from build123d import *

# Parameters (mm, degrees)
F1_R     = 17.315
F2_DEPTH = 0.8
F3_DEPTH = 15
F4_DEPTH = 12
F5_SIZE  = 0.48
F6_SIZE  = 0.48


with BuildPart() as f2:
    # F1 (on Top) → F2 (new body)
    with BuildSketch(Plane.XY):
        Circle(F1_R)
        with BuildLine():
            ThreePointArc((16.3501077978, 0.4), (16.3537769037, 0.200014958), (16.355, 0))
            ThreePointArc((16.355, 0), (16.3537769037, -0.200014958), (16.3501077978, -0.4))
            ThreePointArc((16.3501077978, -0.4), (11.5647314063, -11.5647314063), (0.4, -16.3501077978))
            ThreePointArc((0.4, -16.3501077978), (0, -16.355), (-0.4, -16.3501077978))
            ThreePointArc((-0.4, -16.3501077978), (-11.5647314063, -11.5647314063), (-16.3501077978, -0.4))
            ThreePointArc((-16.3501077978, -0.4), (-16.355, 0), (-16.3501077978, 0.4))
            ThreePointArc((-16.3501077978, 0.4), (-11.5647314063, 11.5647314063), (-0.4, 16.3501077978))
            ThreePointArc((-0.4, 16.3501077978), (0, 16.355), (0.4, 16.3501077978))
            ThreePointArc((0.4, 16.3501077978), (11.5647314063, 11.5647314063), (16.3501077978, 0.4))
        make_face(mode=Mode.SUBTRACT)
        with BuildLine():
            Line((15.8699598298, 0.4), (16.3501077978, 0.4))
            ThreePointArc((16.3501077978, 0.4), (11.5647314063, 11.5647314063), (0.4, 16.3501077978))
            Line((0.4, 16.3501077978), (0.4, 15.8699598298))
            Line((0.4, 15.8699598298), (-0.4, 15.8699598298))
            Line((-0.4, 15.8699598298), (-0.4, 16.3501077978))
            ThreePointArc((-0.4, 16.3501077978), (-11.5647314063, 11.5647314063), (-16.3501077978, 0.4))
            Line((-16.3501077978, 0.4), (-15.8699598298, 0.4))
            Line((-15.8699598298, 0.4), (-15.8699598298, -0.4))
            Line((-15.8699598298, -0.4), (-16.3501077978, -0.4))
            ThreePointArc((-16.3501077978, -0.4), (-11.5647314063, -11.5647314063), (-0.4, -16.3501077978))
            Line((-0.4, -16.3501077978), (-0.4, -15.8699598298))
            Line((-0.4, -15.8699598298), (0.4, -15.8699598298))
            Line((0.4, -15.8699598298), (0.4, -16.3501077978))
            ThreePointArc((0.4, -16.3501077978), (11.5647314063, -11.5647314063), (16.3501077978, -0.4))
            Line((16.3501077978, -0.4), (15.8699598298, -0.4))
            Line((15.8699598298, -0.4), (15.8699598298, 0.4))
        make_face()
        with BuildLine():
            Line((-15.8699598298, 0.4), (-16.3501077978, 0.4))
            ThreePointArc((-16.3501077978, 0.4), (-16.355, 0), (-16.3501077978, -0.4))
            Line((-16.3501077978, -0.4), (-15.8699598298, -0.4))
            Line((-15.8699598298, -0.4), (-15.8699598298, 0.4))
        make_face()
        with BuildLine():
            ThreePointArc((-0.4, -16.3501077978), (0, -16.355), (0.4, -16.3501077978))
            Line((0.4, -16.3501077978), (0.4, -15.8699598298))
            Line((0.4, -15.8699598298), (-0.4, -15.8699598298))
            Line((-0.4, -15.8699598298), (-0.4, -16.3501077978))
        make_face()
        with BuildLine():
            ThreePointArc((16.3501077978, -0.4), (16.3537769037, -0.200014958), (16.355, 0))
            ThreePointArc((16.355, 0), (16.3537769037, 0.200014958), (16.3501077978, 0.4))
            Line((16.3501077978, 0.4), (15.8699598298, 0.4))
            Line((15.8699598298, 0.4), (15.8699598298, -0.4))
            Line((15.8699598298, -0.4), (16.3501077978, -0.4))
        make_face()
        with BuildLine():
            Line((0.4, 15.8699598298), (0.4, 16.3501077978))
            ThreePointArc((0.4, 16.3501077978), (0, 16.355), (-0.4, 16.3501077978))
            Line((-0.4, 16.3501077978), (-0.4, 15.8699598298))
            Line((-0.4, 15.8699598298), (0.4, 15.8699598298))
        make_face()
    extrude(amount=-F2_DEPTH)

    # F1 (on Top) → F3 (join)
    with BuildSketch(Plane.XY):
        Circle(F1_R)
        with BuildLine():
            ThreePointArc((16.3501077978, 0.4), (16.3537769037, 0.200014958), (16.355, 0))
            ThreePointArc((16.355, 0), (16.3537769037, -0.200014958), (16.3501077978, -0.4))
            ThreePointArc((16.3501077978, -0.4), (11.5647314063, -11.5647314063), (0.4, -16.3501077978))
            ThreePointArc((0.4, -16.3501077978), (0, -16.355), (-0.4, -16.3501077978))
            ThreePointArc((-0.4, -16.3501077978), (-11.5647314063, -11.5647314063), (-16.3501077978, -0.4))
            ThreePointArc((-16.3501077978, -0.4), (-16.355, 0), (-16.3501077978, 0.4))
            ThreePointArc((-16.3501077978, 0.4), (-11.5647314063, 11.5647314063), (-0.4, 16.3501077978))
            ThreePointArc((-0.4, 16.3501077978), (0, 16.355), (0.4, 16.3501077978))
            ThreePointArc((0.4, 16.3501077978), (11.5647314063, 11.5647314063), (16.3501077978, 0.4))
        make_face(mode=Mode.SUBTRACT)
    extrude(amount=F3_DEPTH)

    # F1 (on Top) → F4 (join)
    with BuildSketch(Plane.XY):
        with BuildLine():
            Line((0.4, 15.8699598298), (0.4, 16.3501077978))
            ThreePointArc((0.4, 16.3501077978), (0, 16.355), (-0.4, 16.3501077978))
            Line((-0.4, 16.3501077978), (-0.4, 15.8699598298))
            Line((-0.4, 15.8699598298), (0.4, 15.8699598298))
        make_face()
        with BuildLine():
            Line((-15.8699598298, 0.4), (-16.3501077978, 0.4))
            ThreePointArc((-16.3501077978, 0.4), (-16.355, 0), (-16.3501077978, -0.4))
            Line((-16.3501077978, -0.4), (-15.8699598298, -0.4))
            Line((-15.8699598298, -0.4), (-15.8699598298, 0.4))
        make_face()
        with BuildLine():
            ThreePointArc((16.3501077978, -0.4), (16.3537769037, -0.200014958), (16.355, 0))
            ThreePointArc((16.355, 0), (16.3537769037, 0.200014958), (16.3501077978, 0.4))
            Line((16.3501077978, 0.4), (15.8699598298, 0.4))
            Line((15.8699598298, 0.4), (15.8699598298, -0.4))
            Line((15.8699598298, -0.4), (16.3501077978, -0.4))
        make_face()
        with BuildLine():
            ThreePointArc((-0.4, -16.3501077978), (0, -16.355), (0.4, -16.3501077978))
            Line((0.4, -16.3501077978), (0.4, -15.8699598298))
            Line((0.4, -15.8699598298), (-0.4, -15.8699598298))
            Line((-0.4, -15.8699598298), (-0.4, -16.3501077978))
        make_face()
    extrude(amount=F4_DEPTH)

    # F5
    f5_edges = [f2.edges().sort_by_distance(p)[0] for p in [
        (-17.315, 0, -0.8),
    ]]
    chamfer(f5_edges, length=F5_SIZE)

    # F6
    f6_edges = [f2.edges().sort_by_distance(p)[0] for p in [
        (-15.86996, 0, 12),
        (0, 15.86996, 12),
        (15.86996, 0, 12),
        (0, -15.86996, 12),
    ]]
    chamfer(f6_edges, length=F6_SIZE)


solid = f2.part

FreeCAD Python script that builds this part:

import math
import FreeCAD as App
import Part
import Sketcher
from FreeCAD import Vector
Q = App.Units.Quantity


def edges_at(feature, points):
    """Names of the edges that pass closest to the given points."""
    edges = feature.Shape.Edges
    near = lambda p: min(range(len(edges)), key=lambda i: edges[i].distToShape(Part.Vertex(*p))[0])
    return sorted({f"Edge{near(p) + 1}" for p in points})

doc = App.newDocument("Part")
params = doc.addObject("Spreadsheet::Sheet", "Params")
for row, (alias, value) in enumerate([
    ("sketch1_diameter", "34.63 mm"),
    ("pad1_length", "0.8 mm"),
    ("sketch2_diameter", "34.63 mm"),
    ("pad2_length", "15 mm"),
    ("sketch3_width", "0.8 mm"),
    ("pad3_length", "12 mm"),
    ("chamfer_size", "0.48 mm"),
    ("chamfer2_size", "0.48 mm"),
], start=1):
    params.set(f"A{row}", alias)
    params.set(f"B{row}", "=" + value)
    params.setAlias(f"B{row}", alias)

body = doc.addObject("PartDesign::Body", "Body")

# Sketch on XY plane
sketch1 = body.newObject("Sketcher::SketchObject", "Sketch")
sketch1.AttachmentSupport = (doc.getObject("XY_Plane"), [""])
sketch1.MapMode = "FlatFace"
sketch1.addGeometry(Part.Circle(Vector(0, 0, 0), Vector(0, 0, 1), 17), False)
sketch1.addConstraint([
    Sketcher.Constraint("Coincident", 0, 3, -1, 1),
    Sketcher.Constraint("Diameter", 0, Q("34.63 mm")),
])
sketch1.setExpression("Constraints[1]", "Params.sketch1_diameter")
pad1 = body.newObject("PartDesign::Pad", "Pad")
pad1.Profile = sketch1
pad1.setExpression("Length", "Params.pad1_length")
pad1.Reversed = True

# Sketch on XY plane
sketch2 = body.newObject("Sketcher::SketchObject", "Sketch001")
sketch2.AttachmentSupport = (doc.getObject("XY_Plane"), [""])
sketch2.MapMode = "FlatFace"
sketch2.addGeometry([
    Part.Circle(Vector(0, 0, 0), Vector(0, 0, 1), 17.32),  # 0
    Part.ArcOfCircle(Part.Circle(Vector(0, 0, 0), Vector(0, 0, 1), 16.36), math.radians(1), math.radians(89)),  # 1
    Part.ArcOfCircle(Part.Circle(Vector(0, 0, 0), Vector(0, 0, 1), 16.36), math.radians(0), math.radians(1.4)),  # 2
    Part.ArcOfCircle(Part.Circle(Vector(0, 0, 0), Vector(0, 0, 1), 16.36), math.radians(-1.4), math.radians(0)),  # 3
    Part.ArcOfCircle(Part.Circle(Vector(0, 0, 0), Vector(0, 0, 1), 16.36), math.radians(-89), math.radians(-1)),  # 4
    Part.ArcOfCircle(Part.Circle(Vector(0, 0, 0), Vector(0, 0, 1), 16.35), math.radians(-91.4), math.radians(-88.6)),  # 5
    Part.ArcOfCircle(Part.Circle(Vector(0, 0, 0), Vector(0, 0, 1), 16.36), math.radians(-179), math.radians(-91)),  # 6
    Part.ArcOfCircle(Part.Circle(Vector(0, 0, 0), Vector(0, 0, 1), 16.35), math.radians(178.6), math.radians(181.4)),  # 7
    Part.ArcOfCircle(Part.Circle(Vector(0, 0, 0), Vector(0, 0, 1), 16.36), math.radians(91), math.radians(179)),  # 8
    Part.ArcOfCircle(Part.Circle(Vector(0, 0, 0), Vector(0, 0, 1), 16.35), math.radians(88.6), math.radians(91.4)),  # 9
], False)
sketch2.addConstraint([
    Sketcher.Constraint("Tangent", 1, 1, 2, 2),
    Sketcher.Constraint("Tangent", 2, 1, 3, 2),
    Sketcher.Constraint("Tangent", 3, 1, 4, 2),
    Sketcher.Constraint("Tangent", 4, 1, 5, 2),
    Sketcher.Constraint("Tangent", 5, 1, 6, 2),
    Sketcher.Constraint("Tangent", 6, 1, 7, 2),
    Sketcher.Constraint("Tangent", 7, 1, 8, 2),
    Sketcher.Constraint("Tangent", 8, 1, 9, 2),
    Sketcher.Constraint("Tangent", 9, 1, 1, 2),
    Sketcher.Constraint("Coincident", 0, 3, -1, 1),
    Sketcher.Constraint("Coincident", 1, 3, -1, 1),
    Sketcher.Constraint("Coincident", 3, 3, -1, 1),
    Sketcher.Constraint("Coincident", 5, 3, -1, 1),
    Sketcher.Constraint("Coincident", 7, 3, -1, 1),
    Sketcher.Constraint("PointOnObject", 2, 1, -1),
    Sketcher.Constraint("Horizontal", 4, 1, 5, 1),
    Sketcher.Constraint("Horizontal", 3, 1, 6, 1),
    Sketcher.Constraint("Horizontal", 1, 1, 7, 1),
    Sketcher.Constraint("Horizontal", 8, 1, 9, 1),
    Sketcher.Constraint("Vertical", 1, 1, 3, 1),
    Sketcher.Constraint("Vertical", 5, 1, 8, 1),
    Sketcher.Constraint("Diameter", 0, Q("34.63 mm")),
    Sketcher.Constraint("Radius", 1, Q("16.355 mm")),
    Sketcher.Constraint("DistanceY", -1, 1, 1, 1, Q("0.4 mm")),
    Sketcher.Constraint("DistanceX", -1, 1, 4, 1, Q("0.4 mm")),
])
sketch2.setExpression("Constraints[21]", "Params.sketch2_diameter")
pad2 = body.newObject("PartDesign::Pad", "Pad001")
pad2.Profile = sketch2
pad2.setExpression("Length", "Params.pad2_length")

# Sketch on XY plane
sketch3 = body.newObject("Sketcher::SketchObject", "Sketch002")
sketch3.AttachmentSupport = (doc.getObject("XY_Plane"), [""])
sketch3.MapMode = "FlatFace"
sketch3.addGeometry([
    Part.LineSegment(Vector(0.4, 15.87, 0), Vector(0.4, 16.35, 0)),  # 0
    Part.ArcOfCircle(Part.Circle(Vector(0, 0, 0), Vector(0, 0, 1), 16.35), math.radians(88.6), math.radians(91.4)),  # 1
    Part.LineSegment(Vector(-0.4, 16.35, 0), Vector(-0.4, 15.87, 0)),  # 2
    Part.LineSegment(Vector(-0.4, 15.87, 0), Vector(0.4, 15.87, 0)),  # 3
    Part.LineSegment(Vector(-15.87, 0.4, 0), Vector(-16.35, 0.4, 0)),  # 4
    Part.ArcOfCircle(Part.Circle(Vector(0, 0, 0), Vector(0, 0, 1), 16.35), math.radians(178.6), math.radians(181.4)),  # 5
    Part.LineSegment(Vector(-16.35, -0.4, 0), Vector(-15.87, -0.4, 0)),  # 6
    Part.LineSegment(Vector(-15.87, -0.4, 0), Vector(-15.87, 0.4, 0)),  # 7
    Part.ArcOfCircle(Part.Circle(Vector(0, 0, 0), Vector(0, 0, 1), 16.36), math.radians(-1.4), math.radians(0)),  # 8
    Part.ArcOfCircle(Part.Circle(Vector(0, 0, 0), Vector(0, 0, 1), 16.36), math.radians(0), math.radians(1.4)),  # 9
    Part.LineSegment(Vector(16.35, 0.4, 0), Vector(15.87, 0.4, 0)),  # 10
    Part.LineSegment(Vector(15.87, 0.4, 0), Vector(15.87, -0.4, 0)),  # 11
    Part.LineSegment(Vector(15.87, -0.4, 0), Vector(16.35, -0.4, 0)),  # 12
    Part.ArcOfCircle(Part.Circle(Vector(0, 0, 0), Vector(0, 0, 1), 16.35), math.radians(-91.4), math.radians(-88.6)),  # 13
    Part.LineSegment(Vector(0.4, -16.35, 0), Vector(0.4, -15.87, 0)),  # 14
    Part.LineSegment(Vector(0.4, -15.87, 0), Vector(-0.4, -15.87, 0)),  # 15
    Part.LineSegment(Vector(-0.4, -15.87, 0), Vector(-0.4, -16.35, 0)),  # 16
], False)
sketch3.addConstraint([
    Sketcher.Constraint("Coincident", 0, 2, 1, 1),
    Sketcher.Constraint("Coincident", 1, 2, 2, 1),
    Sketcher.Constraint("Coincident", 2, 2, 3, 1),
    Sketcher.Constraint("Coincident", 3, 2, 0, 1),
    Sketcher.Constraint("Coincident", 4, 2, 5, 1),
    Sketcher.Constraint("Coincident", 5, 2, 6, 1),
    Sketcher.Constraint("Coincident", 6, 2, 7, 1),
    Sketcher.Constraint("Coincident", 7, 2, 4, 1),
    Sketcher.Constraint("Tangent", 8, 2, 9, 1),
    Sketcher.Constraint("Coincident", 9, 2, 10, 1),
    Sketcher.Constraint("Coincident", 10, 2, 11, 1),
    Sketcher.Constraint("Coincident", 11, 2, 12, 1),
    Sketcher.Constraint("Coincident", 12, 2, 8, 1),
    Sketcher.Constraint("Coincident", 13, 2, 14, 1),
    Sketcher.Constraint("Coincident", 14, 2, 15, 1),
    Sketcher.Constraint("Coincident", 15, 2, 16, 1),
    Sketcher.Constraint("Coincident", 16, 2, 13, 1),
    Sketcher.Constraint("Vertical", 0),
    Sketcher.Constraint("Vertical", 2),
    Sketcher.Constraint("Horizontal", 3),
    Sketcher.Constraint("Horizontal", 4),
    Sketcher.Constraint("Horizontal", 6),
    Sketcher.Constraint("Vertical", 7),
    Sketcher.Constraint("Horizontal", 10),
    Sketcher.Constraint("Vertical", 11),
    Sketcher.Constraint("Horizontal", 12),
    Sketcher.Constraint("Vertical", 14),
    Sketcher.Constraint("Horizontal", 15),
    Sketcher.Constraint("Vertical", 16),
    Sketcher.Constraint("Coincident", 1, 3, -1, 1),
    Sketcher.Constraint("Coincident", 5, 3, -1, 1),
    Sketcher.Constraint("Coincident", 8, 3, -1, 1),
    Sketcher.Constraint("Coincident", 13, 3, -1, 1),
    Sketcher.Constraint("Equal", 1, 5),
    Sketcher.Constraint("Equal", 5, 8),
    Sketcher.Constraint("Equal", 8, 9),
    Sketcher.Constraint("Equal", 9, 13),
    Sketcher.Constraint("Symmetric", 6, 2, 10, 2, -1, 1),
    Sketcher.Constraint("Symmetric", 2, 2, 14, 2, -1, 1),
    Sketcher.Constraint("PointOnObject", 8, 2, -1),
    Sketcher.Constraint("Horizontal", 0, 2, 1, 2),
    Sketcher.Constraint("Horizontal", 7, 2, 9, 2),
    Sketcher.Constraint("Horizontal", 6, 2, 11, 2),
    Sketcher.Constraint("Horizontal", 13, 2, 16, 2),
    Sketcher.Constraint("Equal", 12, 0),
    Sketcher.Constraint("Equal", 15, 7),
    Sketcher.Constraint("DistanceX", 3, 1, 3, 2, Q("0.8 mm")),
    Sketcher.Constraint("Radius", 1, Q("16.355 mm")),
    Sketcher.Constraint("DistanceX", 4, 2, 4, 1, Q("0.480148 mm")),
])
sketch3.setExpression("Constraints[46]", "Params.sketch3_width")
pad3 = body.newObject("PartDesign::Pad", "Pad002")
pad3.Profile = sketch3
pad3.setExpression("Length", "Params.pad3_length")
doc.recompute()

chamfer = body.newObject("PartDesign::Chamfer", "Chamfer")
chamfer.Base = (pad3, edges_at(pad3, [(-17.315, 0, -0.8)]))
chamfer.setExpression("Size", "Params.chamfer_size")
doc.recompute()

chamfer2 = body.newObject("PartDesign::Chamfer", "Chamfer001")
chamfer2.Base = (chamfer, edges_at(chamfer, [
    (-15.87, 0, 12),
    (0, 15.87, 12),
    (15.87, 0, 12),
    (0, -15.87, 12),
]))
chamfer2.setExpression("Size", "Params.chamfer2_size")

doc.recompute()
